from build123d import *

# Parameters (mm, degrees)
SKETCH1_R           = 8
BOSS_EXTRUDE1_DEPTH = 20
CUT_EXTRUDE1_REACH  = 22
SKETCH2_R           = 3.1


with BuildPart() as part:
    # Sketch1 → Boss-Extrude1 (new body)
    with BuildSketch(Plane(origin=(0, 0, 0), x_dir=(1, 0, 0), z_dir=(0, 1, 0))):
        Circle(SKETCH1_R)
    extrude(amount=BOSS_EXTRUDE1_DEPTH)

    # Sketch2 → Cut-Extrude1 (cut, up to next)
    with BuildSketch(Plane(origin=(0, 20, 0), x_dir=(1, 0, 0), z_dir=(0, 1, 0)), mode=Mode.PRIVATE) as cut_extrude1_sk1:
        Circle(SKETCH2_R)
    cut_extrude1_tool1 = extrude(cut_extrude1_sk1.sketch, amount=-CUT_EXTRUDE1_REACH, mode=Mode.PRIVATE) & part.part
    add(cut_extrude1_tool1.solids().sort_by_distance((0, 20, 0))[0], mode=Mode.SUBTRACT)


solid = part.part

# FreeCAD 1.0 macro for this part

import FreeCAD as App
import Part
import Sketcher

V = App.Vector
Q = App.Units.Quantity

doc = App.newDocument("Part")
body = doc.addObject("PartDesign::Body", "Body")

# Sketch on XZ plane
sketch1 = body.newObject("Sketcher::SketchObject", "Sketch")
sketch1.AttachmentSupport = (doc.getObject("XZ_Plane"), [""])
sketch1.MapMode = "FlatFace"
sketch1.addGeometry(Part.Circle(V(0, 0, 0), V(0, 0, 1), 8), False)
sketch1.addConstraint([
    Sketcher.Constraint("Coincident", 0, 3, -1, 1),
    Sketcher.Constraint("Diameter", 0, Q("16 mm")),
])
pad1 = body.newObject("PartDesign::Pad", "Pad")
pad1.Profile = sketch1
pad1.Length = 20
pad1.Reversed = True

# Sketch on XZ plane
sketch2 = body.newObject("Sketcher::SketchObject", "Sketch001")
sketch2.AttachmentSupport = (doc.getObject("XZ_Plane"), [""])
sketch2.MapMode = "FlatFace"
sketch2.AttachmentOffset = App.Placement(V(0, 0, -20), App.Rotation())
sketch2.addGeometry(Part.Circle(V(0, 0, 0), V(0, 0, 1), 3.1), False)
sketch2.addConstraint([
    Sketcher.Constraint("Coincident", 0, 3, -1, 1),
    Sketcher.Constraint("Diameter", 0, Q("6.2 mm")),
])
pocket1 = body.newObject("PartDesign::Pocket", "Pocket")
pocket1.Profile = sketch2
pocket1.Type = "UpToFirst"
pocket1.Reversed = True

doc.recompute()
